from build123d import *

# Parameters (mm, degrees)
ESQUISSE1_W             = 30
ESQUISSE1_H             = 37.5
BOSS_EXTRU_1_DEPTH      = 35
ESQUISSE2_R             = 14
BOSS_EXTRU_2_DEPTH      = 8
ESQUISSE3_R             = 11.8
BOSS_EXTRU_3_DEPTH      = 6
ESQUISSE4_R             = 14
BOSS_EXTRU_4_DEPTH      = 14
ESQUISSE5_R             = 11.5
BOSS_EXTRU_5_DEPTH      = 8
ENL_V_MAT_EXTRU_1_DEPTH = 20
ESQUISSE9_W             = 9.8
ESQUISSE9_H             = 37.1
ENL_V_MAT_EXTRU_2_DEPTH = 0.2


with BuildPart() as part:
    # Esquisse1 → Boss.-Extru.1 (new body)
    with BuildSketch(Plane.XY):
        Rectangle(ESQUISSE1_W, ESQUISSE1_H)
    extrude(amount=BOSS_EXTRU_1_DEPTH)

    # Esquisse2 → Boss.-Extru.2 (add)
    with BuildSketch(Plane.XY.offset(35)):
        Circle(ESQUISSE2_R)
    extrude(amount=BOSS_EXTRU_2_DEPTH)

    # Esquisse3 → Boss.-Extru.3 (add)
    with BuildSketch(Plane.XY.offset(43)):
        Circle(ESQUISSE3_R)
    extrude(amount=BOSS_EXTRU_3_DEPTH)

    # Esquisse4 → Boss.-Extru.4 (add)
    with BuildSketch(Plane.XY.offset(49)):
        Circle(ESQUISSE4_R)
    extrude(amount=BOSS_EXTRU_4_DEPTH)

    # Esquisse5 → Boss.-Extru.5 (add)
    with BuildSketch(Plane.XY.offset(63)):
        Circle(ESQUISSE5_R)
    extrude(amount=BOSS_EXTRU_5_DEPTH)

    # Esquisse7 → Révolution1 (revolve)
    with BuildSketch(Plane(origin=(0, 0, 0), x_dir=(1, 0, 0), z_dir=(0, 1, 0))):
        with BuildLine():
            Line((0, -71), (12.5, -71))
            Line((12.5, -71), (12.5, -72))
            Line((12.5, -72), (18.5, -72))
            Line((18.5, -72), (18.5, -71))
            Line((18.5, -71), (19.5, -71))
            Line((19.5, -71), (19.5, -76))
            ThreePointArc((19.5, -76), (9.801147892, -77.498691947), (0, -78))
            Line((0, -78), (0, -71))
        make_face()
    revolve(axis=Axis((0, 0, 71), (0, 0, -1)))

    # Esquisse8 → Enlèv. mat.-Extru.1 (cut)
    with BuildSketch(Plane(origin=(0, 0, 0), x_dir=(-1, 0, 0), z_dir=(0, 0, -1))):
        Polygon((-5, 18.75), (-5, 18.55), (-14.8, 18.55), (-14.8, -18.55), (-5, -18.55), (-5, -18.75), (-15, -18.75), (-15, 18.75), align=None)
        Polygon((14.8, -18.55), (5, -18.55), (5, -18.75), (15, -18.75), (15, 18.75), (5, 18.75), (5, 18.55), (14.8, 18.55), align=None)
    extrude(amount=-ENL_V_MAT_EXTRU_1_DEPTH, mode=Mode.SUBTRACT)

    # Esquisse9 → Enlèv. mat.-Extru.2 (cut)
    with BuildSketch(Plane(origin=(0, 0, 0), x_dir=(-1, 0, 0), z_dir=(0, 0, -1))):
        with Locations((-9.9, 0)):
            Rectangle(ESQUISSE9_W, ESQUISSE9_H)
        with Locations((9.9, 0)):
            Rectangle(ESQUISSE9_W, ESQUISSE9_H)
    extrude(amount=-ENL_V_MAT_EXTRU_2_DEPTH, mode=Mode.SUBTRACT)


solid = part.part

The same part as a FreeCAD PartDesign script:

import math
import FreeCAD as App
import Part
import Sketcher
Q = App.Units.Quantity

doc = App.newDocument("Part")
body = doc.addObject("PartDesign::Body", "Body")

sketch1 = body.newObject("Sketcher::SketchObject", "Sketch")
sketch1.AttachmentSupport = (doc.getObject("XY_Plane"), [""])
sketch1.MapMode = "FlatFace"
sketch1.addGeometry(Part.LineSegment(App.Vector(-15, 19, 0), App.Vector(-15, -19, 0)), False)
sketch1.addGeometry(Part.LineSegment(App.Vector(-15, -19, 0), App.Vector(15, -19, 0)), False)
sketch1.addGeometry(Part.LineSegment(App.Vector(15, -19, 0), App.Vector(15, 19, 0)), False)
sketch1.addGeometry(Part.LineSegment(App.Vector(15, 19, 0), App.Vector(-15, 19, 0)), False)
sketch1.addConstraint(Sketcher.Constraint("Coincident", 0, 2, 1, 1))
sketch1.addConstraint(Sketcher.Constraint("Coincident", 1, 2, 2, 1))
sketch1.addConstraint(Sketcher.Constraint("Coincident", 2, 2, 3, 1))
sketch1.addConstraint(Sketcher.Constraint("Coincident", 3, 2, 0, 1))
sketch1.addConstraint(Sketcher.Constraint("Vertical", 0))
sketch1.addConstraint(Sketcher.Constraint("Horizontal", 1))
sketch1.addConstraint(Sketcher.Constraint("Vertical", 2))
sketch1.addConstraint(Sketcher.Constraint("Horizontal", 3))
sketch1.addConstraint(Sketcher.Constraint("Symmetric", 0, 2, 2, 2, -1, 1))
sketch1.addConstraint(Sketcher.Constraint("DistanceX", 1, 1, 1, 2, Q("30 mm")))
sketch1.addConstraint(Sketcher.Constraint("DistanceY", 0, 2, 0, 1, Q("37.5 mm")))
pad1 = body.newObject("PartDesign::Pad", "Pad")
pad1.Profile = sketch1
pad1.Length = 35

sketch2 = body.newObject("Sketcher::SketchObject", "Sketch001")
sketch2.AttachmentSupport = (doc.getObject("XY_Plane"), [""])
sketch2.MapMode = "FlatFace"
sketch2.AttachmentOffset = App.Placement(App.Vector(0, 0, 35), App.Rotation())
sketch2.addGeometry(Part.Circle(App.Vector(0, 0, 0), App.Vector(0, 0, 1), 14), False)
sketch2.addConstraint(Sketcher.Constraint("Coincident", 0, 3, -1, 1))
sketch2.addConstraint(Sketcher.Constraint("Diameter", 0, Q("28 mm")))
pad2 = body.newObject("PartDesign::Pad", "Pad001")
pad2.Profile = sketch2
pad2.Length = 8

sketch3 = body.newObject("Sketcher::SketchObject", "Sketch002")
sketch3.AttachmentSupport = (doc.getObject("XY_Plane"), [""])
sketch3.MapMode = "FlatFace"
sketch3.AttachmentOffset = App.Placement(App.Vector(0, 0, 43), App.Rotation())
sketch3.addGeometry(Part.Circle(App.Vector(0, 0, 0), App.Vector(0, 0, 1), 12), False)
sketch3.addConstraint(Sketcher.Constraint("Coincident", 0, 3, -1, 1))
sketch3.addConstraint(Sketcher.Constraint("Diameter", 0, Q("23.6 mm")))
pad3 = body.newObject("PartDesign::Pad", "Pad002")
pad3.Profile = sketch3
pad3.Length = 6

sketch4 = body.newObject("Sketcher::SketchObject", "Sketch003")
sketch4.AttachmentSupport = (doc.getObject("XY_Plane"), [""])
sketch4.MapMode = "FlatFace"
sketch4.AttachmentOffset = App.Placement(App.Vector(0, 0, 49), App.Rotation())
sketch4.addGeometry(Part.Circle(App.Vector(0, 0, 0), App.Vector(0, 0, 1), 14), False)
sketch4.addConstraint(Sketcher.Constraint("Coincident", 0, 3, -1, 1))
sketch4.addConstraint(Sketcher.Constraint("Diameter", 0, Q("28 mm")))
pad4 = body.newObject("PartDesign::Pad", "Pad003")
pad4.Profile = sketch4
pad4.Length = 14

sketch5 = body.newObject("Sketcher::SketchObject", "Sketch004")
sketch5.AttachmentSupport = (doc.getObject("XY_Plane"), [""])
sketch5.MapMode = "FlatFace"
sketch5.AttachmentOffset = App.Placement(App.Vector(0, 0, 63), App.Rotation())
sketch5.addGeometry(Part.Circle(App.Vector(0, 0, 0), App.Vector(0, 0, 1), 12), False)
sketch5.addConstraint(Sketcher.Constraint("Coincident", 0, 3, -1, 1))
sketch5.addConstraint(Sketcher.Constraint("Diameter", 0, Q("23 mm")))
pad5 = body.newObject("PartDesign::Pad", "Pad004")
pad5.Profile = sketch5
pad5.Length = 8

sketch6 = body.newObject("Sketcher::SketchObject", "Sketch005")
sketch6.AttachmentSupport = (doc.getObject("XZ_Plane"), [""])
sketch6.MapMode = "FlatFace"
sketch6.addGeometry(Part.LineSegment(App.Vector(12.5, 71, 0), App.Vector(0, 71, 0)), False)
sketch6.addGeometry(Part.LineSegment(App.Vector(0, 71, 0), App.Vector(0, 78, 0)), False)
sketch6.addGeometry(Part.ArcOfCircle(Part.Circle(App.Vector(0, -18.1, 0), App.Vector(0, 0, 1), 96.1), math.radians(78.29), math.radians(90)), False)
sketch6.addGeometry(Part.LineSegment(App.Vector(19.5, 76, 0), App.Vector(19.5, 71, 0)), False)
sketch6.addGeometry(Part.LineSegment(App.Vector(19.5, 71, 0), App.Vector(18.5, 71, 0)), False)
sketch6.addGeometry(Part.LineSegment(App.Vector(18.5, 71, 0), App.Vector(18.5, 72, 0)), False)
sketch6.addGeometry(Part.LineSegment(App.Vector(18.5, 72, 0), App.Vector(12.5, 72, 0)), False)
sketch6.addGeometry(Part.LineSegment(App.Vector(12.5, 72, 0), App.Vector(12.5, 71, 0)), False)
sketch6.addConstraint(Sketcher.Constraint("Coincident", 0, 2, 1, 1))
sketch6.addConstraint(Sketcher.Constraint("Coincident", 1, 2, 2, 2))
sketch6.addConstraint(Sketcher.Constraint("Coincident", 2, 1, 3, 1))
sketch6.addConstraint(Sketcher.Constraint("Coincident", 3, 2, 4, 1))
sketch6.addConstraint(Sketcher.Constraint("Coincident", 4, 2, 5, 1))
sketch6.addConstraint(Sketcher.Constraint("Coincident", 5, 2, 6, 1))
sketch6.addConstraint(Sketcher.Constraint("Coincident", 6, 2, 7, 1))
sketch6.addConstraint(Sketcher.Constraint("Coincident", 7, 2, 0, 1))
sketch6.addConstraint(Sketcher.Constraint("Horizontal", 0))
sketch6.addConstraint(Sketcher.Constraint("Vertical", 1))
sketch6.addConstraint(Sketcher.Constraint("Vertical", 3))
sketch6.addConstraint(Sketcher.Constraint("Horizontal", 4))
sketch6.addConstraint(Sketcher.Constraint("Vertical", 5))
sketch6.addConstraint(Sketcher.Constraint("Horizontal", 6))
sketch6.addConstraint(Sketcher.Constraint("Vertical", 7))
sketch6.addConstraint(Sketcher.Constraint("PointOnObject", 2, 3, -2))
sketch6.addConstraint(Sketcher.Constraint("PointOnObject", 0, 2, -2))
sketch6.addConstraint(Sketcher.Constraint("Horizontal", 0, 2, 3, 2))
sketch6.addConstraint(Sketcher.Constraint("Equal", 4, 5))
sketch6.addConstraint(Sketcher.Constraint("DistanceX", 4, 2, 4, 1, Q("1 mm")))
sketch6.addConstraint(Sketcher.Constraint("DistanceX", 6, 2, 6, 1, Q("6 mm")))
sketch6.addConstraint(Sketcher.Constraint("DistanceY", 1, 1, 1, 2, Q("7 mm")))
sketch6.addConstraint(Sketcher.Constraint("DistanceY", 3, 2, 3, 1, Q("5 mm")))
sketch6.addConstraint(Sketcher.Constraint("DistanceX", 0, 2, 0, 1, Q("12.5 mm")))
sketch6.addConstraint(Sketcher.Constraint("DistanceY", -1, 1, 0, 2, Q("71 mm")))
revolution = body.newObject("PartDesign::Revolution", "Revolution")
revolution.Profile = sketch6
revolution.ReferenceAxis = (sketch6, ["V_Axis"])
revolution.Angle = 360

sketch7 = body.newObject("Sketcher::SketchObject", "Sketch006")
sketch7.AttachmentSupport = (doc.getObject("XY_Plane"), [""])
sketch7.MapMode = "FlatFace"
sketch7.addGeometry(Part.LineSegment(App.Vector(5, 18.55, 0), App.Vector(5, 18.75, 0)), False)
sketch7.addGeometry(Part.LineSegment(App.Vector(5, 18.75, 0), App.Vector(15, 18.75, 0)), False)
sketch7.addGeometry(Part.LineSegment(App.Vector(15, 18.75, 0), App.Vector(15, -18.75, 0)), False)
sketch7.addGeometry(Part.LineSegment(App.Vector(15, -18.75, 0), App.Vector(5, -18.75, 0)), False)
sketch7.addGeometry(Part.LineSegment(App.Vector(5, -18.75, 0), App.Vector(5, -18.55, 0)), False)
sketch7.addGeometry(Part.LineSegment(App.Vector(5, -18.55, 0), App.Vector(14.8, -18.55, 0)), False)
sketch7.addGeometry(Part.LineSegment(App.Vector(14.8, -18.55, 0), App.Vector(14.8, 18.55, 0)), False)
sketch7.addGeometry(Part.LineSegment(App.Vector(14.8, 18.55, 0), App.Vector(5, 18.55, 0)), False)
sketch7.addGeometry(Part.LineSegment(App.Vector(-14.8, -18.55, 0), App.Vector(-5, -18.55, 0)), False)
sketch7.addGeometry(Part.LineSegment(App.Vector(-5, -18.55, 0), App.Vector(-5, -18.75, 0)), False)
sketch7.addGeometry(Part.LineSegment(App.Vector(-5, -18.75, 0), App.Vector(-15, -18.75, 0)), False)
sketch7.addGeometry(Part.LineSegment(App.Vector(-15, -18.75, 0), App.Vector(-15, 18.75, 0)), False)
sketch7.addGeometry(Part.LineSegment(App.Vector(-15, 18.75, 0), App.Vector(-5, 18.75, 0)), False)
sketch7.addGeometry(Part.LineSegment(App.Vector(-5, 18.75, 0), App.Vector(-5, 18.55, 0)), False)
sketch7.addGeometry(Part.LineSegment(App.Vector(-5, 18.55, 0), App.Vector(-14.8, 18.55, 0)), False)
sketch7.addGeometry(Part.LineSegment(App.Vector(-14.8, 18.55, 0), App.Vector(-14.8, -18.55, 0)), False)
sketch7.addConstraint(Sketcher.Constraint("Coincident", 0, 2, 1, 1))
sketch7.addConstraint(Sketcher.Constraint("Coincident", 1, 2, 2, 1))
sketch7.addConstraint(Sketcher.Constraint("Coincident", 2, 2, 3, 1))
sketch7.addConstraint(Sketcher.Constraint("Coincident", 3, 2, 4, 1))
sketch7.addConstraint(Sketcher.Constraint("Coincident", 4, 2, 5, 1))
sketch7.addConstraint(Sketcher.Constraint("Coincident", 5, 2, 6, 1))
sketch7.addConstraint(Sketcher.Constraint("Coincident", 6, 2, 7, 1))
sketch7.addConstraint(Sketcher.Constraint("Coincident", 7, 2, 0, 1))
sketch7.addConstraint(Sketcher.Constraint("Coincident", 8, 2, 9, 1))
sketch7.addConstraint(Sketcher.Constraint("Coincident", 9, 2, 10, 1))
sketch7.addConstraint(Sketcher.Constraint("Coincident", 10, 2, 11, 1))
sketch7.addConstraint(Sketcher.Constraint("Coincident", 11, 2, 12, 1))
sketch7.addConstraint(Sketcher.Constraint("Coincident", 12, 2, 13, 1))
sketch7.addConstraint(Sketcher.Constraint("Coincident", 13, 2, 14, 1))
sketch7.addConstraint(Sketcher.Constraint("Coincident", 14, 2, 15, 1))
sketch7.addConstraint(Sketcher.Constraint("Coincident", 15, 2, 8, 1))
sketch7.addConstraint(Sketcher.Constraint("Vertical", 0))
sketch7.addConstraint(Sketcher.Constraint("Horizontal", 1))
sketch7.addConstraint(Sketcher.Constraint("Vertical", 2))
sketch7.addConstraint(Sketcher.Constraint("Horizontal", 3))
sketch7.addConstraint(Sketcher.Constraint("Vertical", 4))
sketch7.addConstraint(Sketcher.Constraint("Horizontal", 5))
sketch7.addConstraint(Sketcher.Constraint("Vertical", 6))
sketch7.addConstraint(Sketcher.Constraint("Horizontal", 7))
sketch7.addConstraint(Sketcher.Constraint("Horizontal", 8))
sketch7.addConstraint(Sketcher.Constraint("Vertical", 9))
sketch7.addConstraint(Sketcher.Constraint("Horizontal", 10))
sketch7.addConstraint(Sketcher.Constraint("Vertical", 11))
sketch7.addConstraint(Sketcher.Constraint("Horizontal", 12))
sketch7.addConstraint(Sketcher.Constraint("Vertical", 13))
sketch7.addConstraint(Sketcher.Constraint("Horizontal", 14))
sketch7.addConstraint(Sketcher.Constraint("Vertical", 15))
sketch7.addConstraint(Sketcher.Constraint("Symmetric", 7, 2, 8, 2, -1, 1))
sketch7.addConstraint(Sketcher.Constraint("Symmetric", 1, 2, 10, 2, -1, 1))
sketch7.addConstraint(Sketcher.Constraint("Symmetric", 3, 2, 12, 2, -1, 1))
sketch7.addConstraint(Sketcher.Constraint("Symmetric", 5, 2, 14, 2, -1, 1))
sketch7.addConstraint(Sketcher.Constraint("Symmetric", 4, 2, 8, 2, -2))
sketch7.addConstraint(Sketcher.Constraint("Horizontal", 3, 2, 9, 2))
sketch7.addConstraint(Sketcher.Constraint("DistanceX", 1, 1, 1, 2, Q("10 mm")))
sketch7.addConstraint(Sketcher.Constraint("DistanceX", 5, 1, 5, 2, Q("9.8 mm")))
sketch7.addConstraint(Sketcher.Constraint("DistanceY", 0, 1, 0, 2, Q("0.2 mm")))
sketch7.addConstraint(Sketcher.Constraint("DistanceY", 2, 2, 2, 1, Q("37.5 mm")))
sketch7.addConstraint(Sketcher.Constraint("DistanceX", -1, 1, 0, 2, Q("5 mm")))
pocket1 = body.newObject("PartDesign::Pocket", "Pocket")
pocket1.Profile = sketch7
pocket1.Length = 20
pocket1.Reversed = True

sketch8 = body.newObject("Sketcher::SketchObject", "Sketch007")
sketch8.AttachmentSupport = (doc.getObject("XY_Plane"), [""])
sketch8.MapMode = "FlatFace"
sketch8.addGeometry(Part.LineSegment(App.Vector(15, 19, 0), App.Vector(15, -19, 0)), False)
sketch8.addGeometry(Part.LineSegment(App.Vector(15, -19, 0), App.Vector(5, -19, 0)), False)
sketch8.addGeometry(Part.LineSegment(App.Vector(5, -19, 0), App.Vector(5, 19, 0)), False)
sketch8.addGeometry(Part.LineSegment(App.Vector(5, 19, 0), App.Vector(15, 19, 0)), False)
sketch8.addGeometry(Part.LineSegment(App.Vector(-5, 19, 0), App.Vector(-5, -19, 0)), False)
sketch8.addGeometry(Part.LineSegment(App.Vector(-5, -19, 0), App.Vector(-15, -19, 0)), False)
sketch8.addGeometry(Part.LineSegment(App.Vector(-15, -19, 0), App.Vector(-15, 19, 0)), False)
sketch8.addGeometry(Part.LineSegment(App.Vector(-15, 19, 0), App.Vector(-5, 19, 0)), False)
sketch8.addConstraint(Sketcher.Constraint("Coincident", 0, 2, 1, 1))
sketch8.addConstraint(Sketcher.Constraint("Coincident", 1, 2, 2, 1))
sketch8.addConstraint(Sketcher.Constraint("Coincident", 2, 2, 3, 1))
sketch8.addConstraint(Sketcher.Constraint("Coincident", 3, 2, 0, 1))
sketch8.addConstraint(Sketcher.Constraint("Coincident", 4, 2, 5, 1))
sketch8.addConstraint(Sketcher.Constraint("Coincident", 5, 2, 6, 1))
sketch8.addConstraint(Sketcher.Constraint("Coincident", 6, 2, 7, 1))
sketch8.addConstraint(Sketcher.Constraint("Coincident", 7, 2, 4, 1))
sketch8.addConstraint(Sketcher.Constraint("Vertical", 0))
sketch8.addConstraint(Sketcher.Constraint("Horizontal", 1))
sketch8.addConstraint(Sketcher.Constraint("Vertical", 2))
sketch8.addConstraint(Sketcher.Constraint("Horizontal", 3))
sketch8.addConstraint(Sketcher.Constraint("Vertical", 4))
sketch8.addConstraint(Sketcher.Constraint("Horizontal", 5))
sketch8.addConstraint(Sketcher.Constraint("Vertical", 6))
sketch8.addConstraint(Sketcher.Constraint("Horizontal", 7))
sketch8.addConstraint(Sketcher.Constraint("Symmetric", 2, 2, 4, 2, -1, 1))
sketch8.addConstraint(Sketcher.Constraint("Symmetric", 0, 2, 6, 2, -1, 1))
sketch8.addConstraint(Sketcher.Constraint("Horizontal", 1, 2, 4, 2))
sketch8.addConstraint(Sketcher.Constraint("DistanceX", 1, 2, 1, 1, Q("9.8 mm")))
sketch8.addConstraint(Sketcher.Constraint("DistanceY", 0, 2, 0, 1, Q("37.1 mm")))
sketch8.addConstraint(Sketcher.Constraint("DistanceX", -1, 1, 1, 2, Q("5 mm")))
pocket2 = body.newObject("PartDesign::Pocket", "Pocket001")
pocket2.Profile = sketch8
pocket2.Length = 0.2
pocket2.Reversed = True

doc.recompute()
